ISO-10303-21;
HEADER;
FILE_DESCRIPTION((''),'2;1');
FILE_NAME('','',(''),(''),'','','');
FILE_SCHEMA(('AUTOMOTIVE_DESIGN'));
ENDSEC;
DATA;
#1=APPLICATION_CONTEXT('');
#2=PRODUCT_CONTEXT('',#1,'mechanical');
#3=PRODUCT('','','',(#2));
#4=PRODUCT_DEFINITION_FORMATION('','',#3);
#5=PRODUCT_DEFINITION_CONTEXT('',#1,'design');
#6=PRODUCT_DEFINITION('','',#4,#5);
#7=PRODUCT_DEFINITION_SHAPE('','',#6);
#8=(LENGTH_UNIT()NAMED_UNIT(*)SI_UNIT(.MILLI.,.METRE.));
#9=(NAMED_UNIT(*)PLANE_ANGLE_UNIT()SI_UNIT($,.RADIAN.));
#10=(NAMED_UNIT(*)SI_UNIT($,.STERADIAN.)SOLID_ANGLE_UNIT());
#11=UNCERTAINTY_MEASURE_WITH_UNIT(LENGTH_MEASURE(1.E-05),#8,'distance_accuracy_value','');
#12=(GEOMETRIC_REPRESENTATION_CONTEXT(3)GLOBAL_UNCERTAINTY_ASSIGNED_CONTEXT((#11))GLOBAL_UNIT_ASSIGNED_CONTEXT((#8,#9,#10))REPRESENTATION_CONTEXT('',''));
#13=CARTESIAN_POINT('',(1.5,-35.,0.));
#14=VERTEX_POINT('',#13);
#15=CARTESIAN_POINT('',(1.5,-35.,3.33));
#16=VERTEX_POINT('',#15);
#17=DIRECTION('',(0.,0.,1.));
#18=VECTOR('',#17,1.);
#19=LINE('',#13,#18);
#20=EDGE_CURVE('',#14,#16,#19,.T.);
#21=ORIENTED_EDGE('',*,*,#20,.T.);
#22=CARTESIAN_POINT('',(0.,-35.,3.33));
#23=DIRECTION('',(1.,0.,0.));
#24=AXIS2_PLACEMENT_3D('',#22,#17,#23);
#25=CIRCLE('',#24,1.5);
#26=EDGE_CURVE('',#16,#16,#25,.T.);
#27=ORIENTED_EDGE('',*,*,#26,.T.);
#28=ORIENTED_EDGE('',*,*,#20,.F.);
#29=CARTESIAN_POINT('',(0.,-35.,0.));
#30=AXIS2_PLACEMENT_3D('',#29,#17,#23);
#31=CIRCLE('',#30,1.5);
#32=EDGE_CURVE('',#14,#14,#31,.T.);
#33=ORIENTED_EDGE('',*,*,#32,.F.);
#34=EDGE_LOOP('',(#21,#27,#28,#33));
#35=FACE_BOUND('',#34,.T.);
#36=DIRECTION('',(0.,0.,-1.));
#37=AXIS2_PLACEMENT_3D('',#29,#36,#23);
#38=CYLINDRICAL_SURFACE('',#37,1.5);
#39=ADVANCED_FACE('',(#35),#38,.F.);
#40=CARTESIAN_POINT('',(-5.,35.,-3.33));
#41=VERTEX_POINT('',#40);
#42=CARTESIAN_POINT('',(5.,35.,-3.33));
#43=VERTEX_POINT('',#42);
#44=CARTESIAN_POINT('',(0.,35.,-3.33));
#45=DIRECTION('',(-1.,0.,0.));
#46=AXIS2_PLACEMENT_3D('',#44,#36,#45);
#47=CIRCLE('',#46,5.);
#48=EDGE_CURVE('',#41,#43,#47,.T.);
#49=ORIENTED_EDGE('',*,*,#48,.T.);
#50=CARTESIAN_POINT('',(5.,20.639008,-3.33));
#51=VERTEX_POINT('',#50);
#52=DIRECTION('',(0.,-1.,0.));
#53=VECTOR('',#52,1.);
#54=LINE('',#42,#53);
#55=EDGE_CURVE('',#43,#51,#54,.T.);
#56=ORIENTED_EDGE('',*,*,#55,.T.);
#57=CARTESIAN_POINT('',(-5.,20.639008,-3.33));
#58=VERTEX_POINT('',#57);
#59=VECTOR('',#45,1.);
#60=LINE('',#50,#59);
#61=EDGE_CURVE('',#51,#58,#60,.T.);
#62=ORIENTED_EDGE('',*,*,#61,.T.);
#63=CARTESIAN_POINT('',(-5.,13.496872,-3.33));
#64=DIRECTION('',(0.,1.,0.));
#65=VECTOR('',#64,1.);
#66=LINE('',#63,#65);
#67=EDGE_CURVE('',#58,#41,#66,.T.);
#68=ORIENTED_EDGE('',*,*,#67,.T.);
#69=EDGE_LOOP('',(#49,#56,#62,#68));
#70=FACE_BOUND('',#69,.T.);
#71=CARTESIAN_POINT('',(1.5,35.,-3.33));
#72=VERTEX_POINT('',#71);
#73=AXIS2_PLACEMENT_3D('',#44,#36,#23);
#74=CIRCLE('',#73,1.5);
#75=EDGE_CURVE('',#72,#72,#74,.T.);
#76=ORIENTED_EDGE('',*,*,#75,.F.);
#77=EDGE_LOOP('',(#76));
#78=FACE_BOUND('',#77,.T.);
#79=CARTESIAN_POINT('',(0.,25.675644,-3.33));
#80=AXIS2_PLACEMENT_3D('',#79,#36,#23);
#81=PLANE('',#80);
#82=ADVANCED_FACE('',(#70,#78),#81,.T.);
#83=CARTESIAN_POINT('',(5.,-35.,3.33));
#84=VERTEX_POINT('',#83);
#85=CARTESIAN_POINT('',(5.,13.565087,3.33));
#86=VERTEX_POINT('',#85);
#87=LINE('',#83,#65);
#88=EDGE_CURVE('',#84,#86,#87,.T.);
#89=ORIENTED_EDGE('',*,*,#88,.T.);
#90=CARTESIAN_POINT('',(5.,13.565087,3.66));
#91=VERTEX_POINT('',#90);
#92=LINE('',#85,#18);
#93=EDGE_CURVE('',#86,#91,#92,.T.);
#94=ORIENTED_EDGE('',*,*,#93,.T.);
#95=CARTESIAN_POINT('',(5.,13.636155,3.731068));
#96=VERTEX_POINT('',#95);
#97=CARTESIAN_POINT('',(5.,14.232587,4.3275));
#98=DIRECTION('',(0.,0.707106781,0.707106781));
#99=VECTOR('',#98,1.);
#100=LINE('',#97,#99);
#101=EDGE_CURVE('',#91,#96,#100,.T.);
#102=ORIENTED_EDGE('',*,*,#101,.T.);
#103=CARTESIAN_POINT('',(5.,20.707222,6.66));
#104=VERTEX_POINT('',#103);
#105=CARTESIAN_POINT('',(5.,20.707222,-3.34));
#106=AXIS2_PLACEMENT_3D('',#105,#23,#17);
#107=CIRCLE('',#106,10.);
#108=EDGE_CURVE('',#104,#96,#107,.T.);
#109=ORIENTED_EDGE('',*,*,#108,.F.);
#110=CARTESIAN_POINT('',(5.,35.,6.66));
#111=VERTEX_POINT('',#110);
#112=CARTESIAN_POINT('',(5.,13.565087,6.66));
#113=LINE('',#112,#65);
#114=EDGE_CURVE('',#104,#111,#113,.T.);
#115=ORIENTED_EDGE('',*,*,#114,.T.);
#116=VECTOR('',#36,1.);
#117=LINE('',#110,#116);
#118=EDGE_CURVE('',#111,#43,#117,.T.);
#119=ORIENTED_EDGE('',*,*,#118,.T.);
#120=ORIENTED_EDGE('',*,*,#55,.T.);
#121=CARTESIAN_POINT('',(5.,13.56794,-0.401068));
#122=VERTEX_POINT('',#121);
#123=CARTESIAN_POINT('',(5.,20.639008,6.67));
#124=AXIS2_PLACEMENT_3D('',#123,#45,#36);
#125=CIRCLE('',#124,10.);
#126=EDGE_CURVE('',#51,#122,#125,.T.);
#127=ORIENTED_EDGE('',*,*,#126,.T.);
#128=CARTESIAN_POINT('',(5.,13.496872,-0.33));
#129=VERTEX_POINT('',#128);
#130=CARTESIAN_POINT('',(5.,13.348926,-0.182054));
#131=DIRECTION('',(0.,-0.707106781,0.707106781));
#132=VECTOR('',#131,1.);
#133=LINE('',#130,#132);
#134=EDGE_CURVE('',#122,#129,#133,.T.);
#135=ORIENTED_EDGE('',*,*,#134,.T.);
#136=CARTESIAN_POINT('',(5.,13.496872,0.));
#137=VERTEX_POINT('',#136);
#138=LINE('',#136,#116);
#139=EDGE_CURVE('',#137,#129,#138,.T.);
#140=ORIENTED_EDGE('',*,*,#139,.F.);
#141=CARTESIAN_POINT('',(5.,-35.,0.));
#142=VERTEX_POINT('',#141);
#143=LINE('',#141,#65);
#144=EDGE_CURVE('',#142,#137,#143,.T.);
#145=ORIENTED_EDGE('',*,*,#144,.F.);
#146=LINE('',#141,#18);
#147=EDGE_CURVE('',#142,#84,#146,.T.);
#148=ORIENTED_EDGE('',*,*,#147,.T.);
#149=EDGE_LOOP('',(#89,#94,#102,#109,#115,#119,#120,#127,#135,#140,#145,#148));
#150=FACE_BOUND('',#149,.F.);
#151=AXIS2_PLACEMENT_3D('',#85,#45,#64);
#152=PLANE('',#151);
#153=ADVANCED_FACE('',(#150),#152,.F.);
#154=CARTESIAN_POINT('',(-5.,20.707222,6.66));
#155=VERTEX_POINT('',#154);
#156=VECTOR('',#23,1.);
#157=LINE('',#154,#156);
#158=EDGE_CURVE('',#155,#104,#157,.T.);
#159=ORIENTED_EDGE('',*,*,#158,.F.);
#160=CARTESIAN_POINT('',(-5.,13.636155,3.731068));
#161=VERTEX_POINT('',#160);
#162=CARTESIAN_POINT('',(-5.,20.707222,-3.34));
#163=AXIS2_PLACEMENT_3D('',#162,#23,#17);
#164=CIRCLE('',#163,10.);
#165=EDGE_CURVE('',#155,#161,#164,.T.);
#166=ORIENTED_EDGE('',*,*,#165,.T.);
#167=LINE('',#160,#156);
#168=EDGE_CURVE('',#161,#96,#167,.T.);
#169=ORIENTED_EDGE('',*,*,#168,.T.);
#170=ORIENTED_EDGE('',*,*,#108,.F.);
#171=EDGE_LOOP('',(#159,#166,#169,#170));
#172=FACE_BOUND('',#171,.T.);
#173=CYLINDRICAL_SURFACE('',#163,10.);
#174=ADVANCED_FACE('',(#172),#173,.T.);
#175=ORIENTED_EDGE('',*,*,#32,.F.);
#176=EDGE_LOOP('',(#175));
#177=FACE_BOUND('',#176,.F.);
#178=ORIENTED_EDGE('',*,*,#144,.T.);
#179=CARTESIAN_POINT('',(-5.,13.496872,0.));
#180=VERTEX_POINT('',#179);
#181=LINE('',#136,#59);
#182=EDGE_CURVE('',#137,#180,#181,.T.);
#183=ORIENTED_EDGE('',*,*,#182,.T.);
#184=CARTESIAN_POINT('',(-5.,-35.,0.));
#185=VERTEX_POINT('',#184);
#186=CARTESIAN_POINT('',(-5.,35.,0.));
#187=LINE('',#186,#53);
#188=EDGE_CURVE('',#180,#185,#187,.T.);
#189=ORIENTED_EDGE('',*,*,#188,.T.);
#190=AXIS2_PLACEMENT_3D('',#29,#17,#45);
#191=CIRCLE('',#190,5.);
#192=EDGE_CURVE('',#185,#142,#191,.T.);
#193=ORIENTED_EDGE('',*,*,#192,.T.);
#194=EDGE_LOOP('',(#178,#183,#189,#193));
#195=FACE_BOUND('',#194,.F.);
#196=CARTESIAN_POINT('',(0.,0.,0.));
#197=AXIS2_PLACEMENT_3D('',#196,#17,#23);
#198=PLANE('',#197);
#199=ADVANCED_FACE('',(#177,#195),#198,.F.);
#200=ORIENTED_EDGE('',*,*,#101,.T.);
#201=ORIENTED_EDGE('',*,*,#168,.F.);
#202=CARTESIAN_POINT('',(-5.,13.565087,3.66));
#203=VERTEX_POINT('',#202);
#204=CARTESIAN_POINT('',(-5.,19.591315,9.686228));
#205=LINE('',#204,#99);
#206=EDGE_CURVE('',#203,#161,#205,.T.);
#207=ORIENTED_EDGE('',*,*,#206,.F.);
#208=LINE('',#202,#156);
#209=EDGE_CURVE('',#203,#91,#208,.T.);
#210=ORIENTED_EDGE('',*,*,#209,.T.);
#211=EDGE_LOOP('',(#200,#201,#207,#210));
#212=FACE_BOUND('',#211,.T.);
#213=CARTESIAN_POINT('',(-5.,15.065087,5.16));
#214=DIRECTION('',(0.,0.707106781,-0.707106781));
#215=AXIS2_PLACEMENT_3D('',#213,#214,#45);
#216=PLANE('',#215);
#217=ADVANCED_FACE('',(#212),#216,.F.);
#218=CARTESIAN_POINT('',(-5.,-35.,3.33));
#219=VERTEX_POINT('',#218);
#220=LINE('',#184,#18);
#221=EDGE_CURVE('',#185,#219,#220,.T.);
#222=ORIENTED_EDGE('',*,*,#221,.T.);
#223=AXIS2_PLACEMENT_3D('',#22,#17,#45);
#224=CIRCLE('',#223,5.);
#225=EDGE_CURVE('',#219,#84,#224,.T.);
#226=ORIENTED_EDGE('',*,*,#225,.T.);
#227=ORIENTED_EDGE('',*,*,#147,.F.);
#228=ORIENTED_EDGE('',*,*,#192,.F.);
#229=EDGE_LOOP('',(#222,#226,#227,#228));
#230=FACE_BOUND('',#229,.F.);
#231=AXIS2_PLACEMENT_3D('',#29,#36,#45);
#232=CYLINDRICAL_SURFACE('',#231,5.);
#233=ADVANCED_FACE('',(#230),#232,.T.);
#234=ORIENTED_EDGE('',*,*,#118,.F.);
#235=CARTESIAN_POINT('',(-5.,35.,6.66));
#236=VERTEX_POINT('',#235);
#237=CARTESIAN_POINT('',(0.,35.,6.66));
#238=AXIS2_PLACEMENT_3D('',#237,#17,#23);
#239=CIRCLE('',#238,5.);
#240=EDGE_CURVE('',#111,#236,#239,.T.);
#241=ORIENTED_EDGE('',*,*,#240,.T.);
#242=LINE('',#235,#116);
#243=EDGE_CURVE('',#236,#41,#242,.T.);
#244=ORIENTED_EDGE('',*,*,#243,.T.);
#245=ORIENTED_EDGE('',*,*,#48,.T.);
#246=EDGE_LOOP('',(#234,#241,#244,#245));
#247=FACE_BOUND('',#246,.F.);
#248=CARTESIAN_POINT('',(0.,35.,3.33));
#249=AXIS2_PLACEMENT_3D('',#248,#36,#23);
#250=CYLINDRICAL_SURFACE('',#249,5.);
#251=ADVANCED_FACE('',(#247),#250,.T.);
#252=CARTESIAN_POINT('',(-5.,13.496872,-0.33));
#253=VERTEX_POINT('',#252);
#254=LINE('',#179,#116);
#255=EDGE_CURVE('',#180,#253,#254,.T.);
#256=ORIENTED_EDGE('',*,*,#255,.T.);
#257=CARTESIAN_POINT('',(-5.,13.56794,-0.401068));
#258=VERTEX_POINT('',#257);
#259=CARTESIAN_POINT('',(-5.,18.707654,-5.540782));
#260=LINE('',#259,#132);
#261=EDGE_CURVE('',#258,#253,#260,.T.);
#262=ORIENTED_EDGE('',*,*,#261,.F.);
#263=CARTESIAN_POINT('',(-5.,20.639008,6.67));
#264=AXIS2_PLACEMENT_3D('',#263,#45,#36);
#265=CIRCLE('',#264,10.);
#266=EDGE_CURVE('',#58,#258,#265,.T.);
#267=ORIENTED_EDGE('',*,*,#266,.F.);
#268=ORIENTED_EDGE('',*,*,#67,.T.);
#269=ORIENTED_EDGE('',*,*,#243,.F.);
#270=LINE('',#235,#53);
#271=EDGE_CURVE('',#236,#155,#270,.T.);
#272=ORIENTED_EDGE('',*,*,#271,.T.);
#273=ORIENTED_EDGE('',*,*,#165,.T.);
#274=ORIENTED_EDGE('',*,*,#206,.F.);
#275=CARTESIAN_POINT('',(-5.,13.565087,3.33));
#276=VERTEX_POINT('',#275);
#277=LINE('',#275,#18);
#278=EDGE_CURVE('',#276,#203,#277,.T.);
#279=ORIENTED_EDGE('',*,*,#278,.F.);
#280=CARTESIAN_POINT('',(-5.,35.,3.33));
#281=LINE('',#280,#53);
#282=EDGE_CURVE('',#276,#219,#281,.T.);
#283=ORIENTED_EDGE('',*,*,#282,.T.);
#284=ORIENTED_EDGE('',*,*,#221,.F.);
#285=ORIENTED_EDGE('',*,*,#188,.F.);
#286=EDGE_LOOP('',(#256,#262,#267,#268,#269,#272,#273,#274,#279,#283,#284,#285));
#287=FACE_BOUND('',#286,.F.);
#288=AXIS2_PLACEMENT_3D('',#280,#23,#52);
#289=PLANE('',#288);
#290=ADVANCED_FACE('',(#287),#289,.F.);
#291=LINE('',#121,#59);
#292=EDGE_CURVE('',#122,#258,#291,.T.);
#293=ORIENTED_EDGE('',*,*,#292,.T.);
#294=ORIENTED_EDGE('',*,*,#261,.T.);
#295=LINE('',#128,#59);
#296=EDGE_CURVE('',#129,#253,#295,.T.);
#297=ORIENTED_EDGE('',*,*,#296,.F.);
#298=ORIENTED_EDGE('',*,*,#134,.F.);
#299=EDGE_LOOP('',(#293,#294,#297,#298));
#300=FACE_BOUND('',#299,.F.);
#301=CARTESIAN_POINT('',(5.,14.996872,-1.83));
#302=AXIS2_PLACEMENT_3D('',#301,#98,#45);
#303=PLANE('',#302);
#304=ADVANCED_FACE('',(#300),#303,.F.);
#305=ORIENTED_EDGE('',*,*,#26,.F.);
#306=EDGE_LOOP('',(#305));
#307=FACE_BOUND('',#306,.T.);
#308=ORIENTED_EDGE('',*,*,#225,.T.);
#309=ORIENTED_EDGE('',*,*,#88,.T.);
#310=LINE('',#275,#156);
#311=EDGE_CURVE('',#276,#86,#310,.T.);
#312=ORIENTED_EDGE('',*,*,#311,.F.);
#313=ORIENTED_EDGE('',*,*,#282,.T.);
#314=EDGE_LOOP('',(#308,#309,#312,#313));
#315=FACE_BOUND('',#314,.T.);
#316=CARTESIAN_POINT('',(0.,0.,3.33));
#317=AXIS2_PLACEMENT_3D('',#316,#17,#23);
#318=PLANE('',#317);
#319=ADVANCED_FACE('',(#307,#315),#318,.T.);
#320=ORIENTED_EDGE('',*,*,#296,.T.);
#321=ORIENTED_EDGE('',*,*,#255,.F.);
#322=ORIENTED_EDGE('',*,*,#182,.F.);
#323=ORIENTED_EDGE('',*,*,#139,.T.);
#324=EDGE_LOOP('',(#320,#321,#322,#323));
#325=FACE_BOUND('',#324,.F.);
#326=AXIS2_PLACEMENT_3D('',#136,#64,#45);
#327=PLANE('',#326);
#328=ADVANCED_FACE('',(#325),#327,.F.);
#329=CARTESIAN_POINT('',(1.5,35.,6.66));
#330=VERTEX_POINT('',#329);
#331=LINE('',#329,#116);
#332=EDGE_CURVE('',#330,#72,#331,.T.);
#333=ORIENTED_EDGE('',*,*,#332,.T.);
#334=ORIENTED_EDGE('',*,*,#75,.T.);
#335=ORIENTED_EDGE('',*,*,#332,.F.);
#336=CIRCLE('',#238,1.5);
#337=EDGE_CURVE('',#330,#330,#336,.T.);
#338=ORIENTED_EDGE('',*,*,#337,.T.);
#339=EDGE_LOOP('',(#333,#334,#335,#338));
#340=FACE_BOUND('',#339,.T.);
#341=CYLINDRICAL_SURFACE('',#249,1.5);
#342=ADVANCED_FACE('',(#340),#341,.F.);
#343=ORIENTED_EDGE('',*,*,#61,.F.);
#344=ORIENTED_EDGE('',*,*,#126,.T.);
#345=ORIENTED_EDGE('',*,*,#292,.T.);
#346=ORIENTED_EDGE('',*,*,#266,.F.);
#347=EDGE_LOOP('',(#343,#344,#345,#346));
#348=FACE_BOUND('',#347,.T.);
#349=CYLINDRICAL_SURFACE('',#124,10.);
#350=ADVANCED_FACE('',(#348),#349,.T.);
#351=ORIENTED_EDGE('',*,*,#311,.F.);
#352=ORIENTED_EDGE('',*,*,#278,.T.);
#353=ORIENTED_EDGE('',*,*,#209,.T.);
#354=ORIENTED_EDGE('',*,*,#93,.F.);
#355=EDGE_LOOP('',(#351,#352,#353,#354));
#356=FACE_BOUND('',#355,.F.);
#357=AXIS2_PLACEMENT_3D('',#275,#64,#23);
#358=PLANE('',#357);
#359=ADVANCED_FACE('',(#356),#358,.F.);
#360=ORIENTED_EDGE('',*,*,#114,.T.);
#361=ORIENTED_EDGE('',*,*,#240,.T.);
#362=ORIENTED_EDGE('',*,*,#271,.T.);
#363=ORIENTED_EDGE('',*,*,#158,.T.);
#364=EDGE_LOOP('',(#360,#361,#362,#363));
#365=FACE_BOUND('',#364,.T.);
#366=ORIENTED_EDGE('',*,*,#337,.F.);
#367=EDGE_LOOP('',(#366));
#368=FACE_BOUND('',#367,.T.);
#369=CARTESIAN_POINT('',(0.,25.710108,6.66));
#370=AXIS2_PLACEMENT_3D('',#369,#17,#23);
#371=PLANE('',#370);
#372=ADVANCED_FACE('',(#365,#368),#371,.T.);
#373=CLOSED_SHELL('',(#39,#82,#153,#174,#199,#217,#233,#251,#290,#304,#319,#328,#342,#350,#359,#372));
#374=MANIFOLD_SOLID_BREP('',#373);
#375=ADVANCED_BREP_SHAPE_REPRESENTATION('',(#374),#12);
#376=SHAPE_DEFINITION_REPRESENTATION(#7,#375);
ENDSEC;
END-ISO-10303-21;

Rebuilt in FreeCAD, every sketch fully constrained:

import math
import FreeCAD as App
import Part
import Sketcher
from FreeCAD import Vector


def edges_at(feature, points):
    """Names of the edges that pass closest to the given points."""
    edges = feature.Shape.Edges
    near = lambda p: min(range(len(edges)), key=lambda i: edges[i].distToShape(Part.Vertex(*p))[0])
    return sorted({f"Edge{near(p) + 1}" for p in points})

doc = App.newDocument("Part")
params = doc.addObject("Spreadsheet::Sheet", "Params")
for row, (alias, value) in enumerate([
    ("sketch1_diameter", "3 mm"),
    ("sketch1_radius", "5 mm"),
    ("sketch1_height", "70 mm"),
    ("pad1_length", "3.33 mm"),
    ("sketch2_diameter", "3 mm"),
    ("sketch2_radius", "5 mm"),
    ("pad2_length", "3.33 mm"),
    ("sketch3_diameter", "3 mm"),
    ("sketch3_radius", "5 mm"),
    ("pad3_length", "3.33 mm"),
    ("chamfer_size", "3 mm"),
    ("fillet_radius", "10 mm"),
    ("chamfer2_size", "3 mm"),
    ("fillet2_radius", "10 mm"),
], start=1):
    params.set(f"A{row}", alias)
    params.set(f"B{row}", "=" + value)
    params.setAlias(f"B{row}", alias)

body = doc.addObject("PartDesign::Body", "Body")

sketch1 = body.newObject("Sketcher::SketchObject", "Sketch")
sketch1.AttachmentSupport = (doc.getObject("XY_Plane"), [""])
sketch1.MapMode = "FlatFace"
sketch1.addGeometry([
    Part.ArcOfCircle(Part.Circle(Vector(0, -35, 0), Vector(0, 0, 1), 5), math.radians(180), math.radians(360)),
    Part.LineSegment(Vector(5, -35, 0), Vector(5, 35, 0)),
    Part.ArcOfCircle(Part.Circle(Vector(0, 35, 0), Vector(0, 0, 1), 5), math.radians(0), math.radians(180)),
    Part.LineSegment(Vector(-5, 35, 0), Vector(-5, -35, 0)),
    Part.Circle(Vector(0, -35, 0), Vector(0, 0, 1), 1.5),
    Part.Circle(Vector(0, 35, 0), Vector(0, 0, 1), 1.5),
], False)
sketch1.addConstraint([
    Sketcher.Constraint("Tangent", 0, 2, 1, 1),
    Sketcher.Constraint("Tangent", 1, 2, 2, 1),
    Sketcher.Constraint("Tangent", 2, 2, 3, 1),
    Sketcher.Constraint("Tangent", 3, 2, 0, 1),
    Sketcher.Constraint("Vertical", 1),
    Sketcher.Constraint("Vertical", 3),
    Sketcher.Constraint("Coincident", 4, 3, 0, 3),
    Sketcher.Constraint("Coincident", 5, 3, 2, 3),
    Sketcher.Constraint("Equal", 4, 5),
    Sketcher.Constraint("Symmetric", 0, 3, 2, 3, -1, 1),
    Sketcher.Constraint("Diameter", 4, 3.0),
    Sketcher.Constraint("Radius", 0, 5.0),
    Sketcher.Constraint("DistanceY", 1, 1, 1, 2, 70.0),
])
sketch1.setExpression("Constraints[10]", "Params.sketch1_diameter")
sketch1.setExpression("Constraints[11]", "Params.sketch1_radius")
sketch1.setExpression("Constraints[12]", "Params.sketch1_height")
pad1 = body.newObject("PartDesign::Pad", "Pad")
pad1.Profile = sketch1
pad1.setExpression("Length", "Params.pad1_length")

sketch2 = body.newObject("Sketcher::SketchObject", "Sketch001")
sketch2.AttachmentSupport = (doc.getObject("XY_Plane"), [""])
sketch2.MapMode = "FlatFace"
sketch2.addGeometry([
    Part.LineSegment(Vector(5, 35, 0), Vector(5, 13.496872, 0)),
    Part.LineSegment(Vector(5, 13.496872, 0), Vector(-5, 13.496872, 0)),
    Part.LineSegment(Vector(-5, 13.496872, 0), Vector(-5, 35, 0)),
    Part.ArcOfCircle(Part.Circle(Vector(0, 35, 0), Vector(0, 0, 1), 5), math.radians(0), math.radians(180)),
    Part.Circle(Vector(0, 35, 0), Vector(0, 0, 1), 1.5),
], False)
sketch2.addConstraint([
    Sketcher.Constraint("Coincident", 0, 2, 1, 1),
    Sketcher.Constraint("Coincident", 1, 2, 2, 1),
    Sketcher.Constraint("Tangent", 2, 2, 3, 2),
    Sketcher.Constraint("Tangent", 3, 1, 0, 1),
    Sketcher.Constraint("Vertical", 0),
    Sketcher.Constraint("Horizontal", 1),
    Sketcher.Constraint("Vertical", 2),
    Sketcher.Constraint("Coincident", 4, 3, 3, 3),
    Sketcher.Constraint("PointOnObject", 3, 3, -2),
    Sketcher.Constraint("Diameter", 4, 3.0),
    Sketcher.Constraint("Radius", 3, 5.0),
    Sketcher.Constraint("DistanceY", -1, 1, 3, 3, 35.0),
    Sketcher.Constraint("DistanceY", 0, 2, 0, 1, 21.503128),
])
sketch2.setExpression("Constraints[9]", "Params.sketch2_diameter")
sketch2.setExpression("Constraints[10]", "Params.sketch2_radius")
pad2 = body.newObject("PartDesign::Pad", "Pad001")
pad2.Profile = sketch2
pad2.setExpression("Length", "Params.pad2_length")
pad2.Reversed = True

sketch3 = body.newObject("Sketcher::SketchObject", "Sketch002")
sketch3.AttachmentSupport = (doc.getObject("XY_Plane"), [""])
sketch3.MapMode = "FlatFace"
sketch3.AttachmentOffset = App.Placement(Vector(0, 0, 3.33), App.Rotation())
sketch3.addGeometry([
    Part.LineSegment(Vector(-5, 35, 0), Vector(-5, 13.565087, 0)),
    Part.LineSegment(Vector(-5, 13.565087, 0), Vector(5, 13.565087, 0)),
    Part.LineSegment(Vector(5, 13.565087, 0), Vector(5, 35, 0)),
    Part.ArcOfCircle(Part.Circle(Vector(0, 35, 0), Vector(0, 0, 1), 5), math.radians(0), math.radians(180)),
    Part.Circle(Vector(0, 35, 0), Vector(0, 0, 1), 1.5),
], False)
sketch3.addConstraint([
    Sketcher.Constraint("Coincident", 0, 2, 1, 1),
    Sketcher.Constraint("Coincident", 1, 2, 2, 1),
    Sketcher.Constraint("Tangent", 2, 2, 3, 1),
    Sketcher.Constraint("Tangent", 3, 2, 0, 1),
    Sketcher.Constraint("Vertical", 0),
    Sketcher.Constraint("Horizontal", 1),
    Sketcher.Constraint("Vertical", 2),
    Sketcher.Constraint("Coincident", 4, 3, 3, 3),
    Sketcher.Constraint("PointOnObject", 3, 3, -2),
    Sketcher.Constraint("Diameter", 4, 3.0),
    Sketcher.Constraint("Radius", 3, 5.0),
    Sketcher.Constraint("DistanceY", -1, 1, 3, 3, 35.0),
    Sketcher.Constraint("DistanceY", 0, 2, 0, 1, 21.434913),
])
sketch3.setExpression("Constraints[9]", "Params.sketch3_diameter")
sketch3.setExpression("Constraints[10]", "Params.sketch3_radius")
pad3 = body.newObject("PartDesign::Pad", "Pad002")
pad3.Profile = sketch3
pad3.setExpression("Length", "Params.pad3_length")
doc.recompute()

chamfer = body.newObject("PartDesign::Chamfer", "Chamfer")
chamfer.Base = (pad3, edges_at(pad3, [(0, 13.565, 6.66)]))
chamfer.setExpression("Size", "Params.chamfer_size")
doc.recompute()

fillet = body.newObject("PartDesign::Fillet", "Fillet")
fillet.Base = (chamfer, edges_at(chamfer, [(0, 16.565, 6.66)]))
fillet.setExpression("Radius", "Params.fillet_radius")
doc.recompute()

chamfer2 = body.newObject("PartDesign::Chamfer", "Chamfer001")
chamfer2.Base = (fillet, edges_at(fillet, [(0, 13.497, -3.33)]))
chamfer2.setExpression("Size", "Params.chamfer2_size")
doc.recompute()

fillet2 = body.newObject("PartDesign::Fillet", "Fillet001")
fillet2.Base = (chamfer2, edges_at(chamfer2, [(0, 16.497, -3.33)]))
fillet2.setExpression("Radius", "Params.fillet2_radius")

doc.recompute()
